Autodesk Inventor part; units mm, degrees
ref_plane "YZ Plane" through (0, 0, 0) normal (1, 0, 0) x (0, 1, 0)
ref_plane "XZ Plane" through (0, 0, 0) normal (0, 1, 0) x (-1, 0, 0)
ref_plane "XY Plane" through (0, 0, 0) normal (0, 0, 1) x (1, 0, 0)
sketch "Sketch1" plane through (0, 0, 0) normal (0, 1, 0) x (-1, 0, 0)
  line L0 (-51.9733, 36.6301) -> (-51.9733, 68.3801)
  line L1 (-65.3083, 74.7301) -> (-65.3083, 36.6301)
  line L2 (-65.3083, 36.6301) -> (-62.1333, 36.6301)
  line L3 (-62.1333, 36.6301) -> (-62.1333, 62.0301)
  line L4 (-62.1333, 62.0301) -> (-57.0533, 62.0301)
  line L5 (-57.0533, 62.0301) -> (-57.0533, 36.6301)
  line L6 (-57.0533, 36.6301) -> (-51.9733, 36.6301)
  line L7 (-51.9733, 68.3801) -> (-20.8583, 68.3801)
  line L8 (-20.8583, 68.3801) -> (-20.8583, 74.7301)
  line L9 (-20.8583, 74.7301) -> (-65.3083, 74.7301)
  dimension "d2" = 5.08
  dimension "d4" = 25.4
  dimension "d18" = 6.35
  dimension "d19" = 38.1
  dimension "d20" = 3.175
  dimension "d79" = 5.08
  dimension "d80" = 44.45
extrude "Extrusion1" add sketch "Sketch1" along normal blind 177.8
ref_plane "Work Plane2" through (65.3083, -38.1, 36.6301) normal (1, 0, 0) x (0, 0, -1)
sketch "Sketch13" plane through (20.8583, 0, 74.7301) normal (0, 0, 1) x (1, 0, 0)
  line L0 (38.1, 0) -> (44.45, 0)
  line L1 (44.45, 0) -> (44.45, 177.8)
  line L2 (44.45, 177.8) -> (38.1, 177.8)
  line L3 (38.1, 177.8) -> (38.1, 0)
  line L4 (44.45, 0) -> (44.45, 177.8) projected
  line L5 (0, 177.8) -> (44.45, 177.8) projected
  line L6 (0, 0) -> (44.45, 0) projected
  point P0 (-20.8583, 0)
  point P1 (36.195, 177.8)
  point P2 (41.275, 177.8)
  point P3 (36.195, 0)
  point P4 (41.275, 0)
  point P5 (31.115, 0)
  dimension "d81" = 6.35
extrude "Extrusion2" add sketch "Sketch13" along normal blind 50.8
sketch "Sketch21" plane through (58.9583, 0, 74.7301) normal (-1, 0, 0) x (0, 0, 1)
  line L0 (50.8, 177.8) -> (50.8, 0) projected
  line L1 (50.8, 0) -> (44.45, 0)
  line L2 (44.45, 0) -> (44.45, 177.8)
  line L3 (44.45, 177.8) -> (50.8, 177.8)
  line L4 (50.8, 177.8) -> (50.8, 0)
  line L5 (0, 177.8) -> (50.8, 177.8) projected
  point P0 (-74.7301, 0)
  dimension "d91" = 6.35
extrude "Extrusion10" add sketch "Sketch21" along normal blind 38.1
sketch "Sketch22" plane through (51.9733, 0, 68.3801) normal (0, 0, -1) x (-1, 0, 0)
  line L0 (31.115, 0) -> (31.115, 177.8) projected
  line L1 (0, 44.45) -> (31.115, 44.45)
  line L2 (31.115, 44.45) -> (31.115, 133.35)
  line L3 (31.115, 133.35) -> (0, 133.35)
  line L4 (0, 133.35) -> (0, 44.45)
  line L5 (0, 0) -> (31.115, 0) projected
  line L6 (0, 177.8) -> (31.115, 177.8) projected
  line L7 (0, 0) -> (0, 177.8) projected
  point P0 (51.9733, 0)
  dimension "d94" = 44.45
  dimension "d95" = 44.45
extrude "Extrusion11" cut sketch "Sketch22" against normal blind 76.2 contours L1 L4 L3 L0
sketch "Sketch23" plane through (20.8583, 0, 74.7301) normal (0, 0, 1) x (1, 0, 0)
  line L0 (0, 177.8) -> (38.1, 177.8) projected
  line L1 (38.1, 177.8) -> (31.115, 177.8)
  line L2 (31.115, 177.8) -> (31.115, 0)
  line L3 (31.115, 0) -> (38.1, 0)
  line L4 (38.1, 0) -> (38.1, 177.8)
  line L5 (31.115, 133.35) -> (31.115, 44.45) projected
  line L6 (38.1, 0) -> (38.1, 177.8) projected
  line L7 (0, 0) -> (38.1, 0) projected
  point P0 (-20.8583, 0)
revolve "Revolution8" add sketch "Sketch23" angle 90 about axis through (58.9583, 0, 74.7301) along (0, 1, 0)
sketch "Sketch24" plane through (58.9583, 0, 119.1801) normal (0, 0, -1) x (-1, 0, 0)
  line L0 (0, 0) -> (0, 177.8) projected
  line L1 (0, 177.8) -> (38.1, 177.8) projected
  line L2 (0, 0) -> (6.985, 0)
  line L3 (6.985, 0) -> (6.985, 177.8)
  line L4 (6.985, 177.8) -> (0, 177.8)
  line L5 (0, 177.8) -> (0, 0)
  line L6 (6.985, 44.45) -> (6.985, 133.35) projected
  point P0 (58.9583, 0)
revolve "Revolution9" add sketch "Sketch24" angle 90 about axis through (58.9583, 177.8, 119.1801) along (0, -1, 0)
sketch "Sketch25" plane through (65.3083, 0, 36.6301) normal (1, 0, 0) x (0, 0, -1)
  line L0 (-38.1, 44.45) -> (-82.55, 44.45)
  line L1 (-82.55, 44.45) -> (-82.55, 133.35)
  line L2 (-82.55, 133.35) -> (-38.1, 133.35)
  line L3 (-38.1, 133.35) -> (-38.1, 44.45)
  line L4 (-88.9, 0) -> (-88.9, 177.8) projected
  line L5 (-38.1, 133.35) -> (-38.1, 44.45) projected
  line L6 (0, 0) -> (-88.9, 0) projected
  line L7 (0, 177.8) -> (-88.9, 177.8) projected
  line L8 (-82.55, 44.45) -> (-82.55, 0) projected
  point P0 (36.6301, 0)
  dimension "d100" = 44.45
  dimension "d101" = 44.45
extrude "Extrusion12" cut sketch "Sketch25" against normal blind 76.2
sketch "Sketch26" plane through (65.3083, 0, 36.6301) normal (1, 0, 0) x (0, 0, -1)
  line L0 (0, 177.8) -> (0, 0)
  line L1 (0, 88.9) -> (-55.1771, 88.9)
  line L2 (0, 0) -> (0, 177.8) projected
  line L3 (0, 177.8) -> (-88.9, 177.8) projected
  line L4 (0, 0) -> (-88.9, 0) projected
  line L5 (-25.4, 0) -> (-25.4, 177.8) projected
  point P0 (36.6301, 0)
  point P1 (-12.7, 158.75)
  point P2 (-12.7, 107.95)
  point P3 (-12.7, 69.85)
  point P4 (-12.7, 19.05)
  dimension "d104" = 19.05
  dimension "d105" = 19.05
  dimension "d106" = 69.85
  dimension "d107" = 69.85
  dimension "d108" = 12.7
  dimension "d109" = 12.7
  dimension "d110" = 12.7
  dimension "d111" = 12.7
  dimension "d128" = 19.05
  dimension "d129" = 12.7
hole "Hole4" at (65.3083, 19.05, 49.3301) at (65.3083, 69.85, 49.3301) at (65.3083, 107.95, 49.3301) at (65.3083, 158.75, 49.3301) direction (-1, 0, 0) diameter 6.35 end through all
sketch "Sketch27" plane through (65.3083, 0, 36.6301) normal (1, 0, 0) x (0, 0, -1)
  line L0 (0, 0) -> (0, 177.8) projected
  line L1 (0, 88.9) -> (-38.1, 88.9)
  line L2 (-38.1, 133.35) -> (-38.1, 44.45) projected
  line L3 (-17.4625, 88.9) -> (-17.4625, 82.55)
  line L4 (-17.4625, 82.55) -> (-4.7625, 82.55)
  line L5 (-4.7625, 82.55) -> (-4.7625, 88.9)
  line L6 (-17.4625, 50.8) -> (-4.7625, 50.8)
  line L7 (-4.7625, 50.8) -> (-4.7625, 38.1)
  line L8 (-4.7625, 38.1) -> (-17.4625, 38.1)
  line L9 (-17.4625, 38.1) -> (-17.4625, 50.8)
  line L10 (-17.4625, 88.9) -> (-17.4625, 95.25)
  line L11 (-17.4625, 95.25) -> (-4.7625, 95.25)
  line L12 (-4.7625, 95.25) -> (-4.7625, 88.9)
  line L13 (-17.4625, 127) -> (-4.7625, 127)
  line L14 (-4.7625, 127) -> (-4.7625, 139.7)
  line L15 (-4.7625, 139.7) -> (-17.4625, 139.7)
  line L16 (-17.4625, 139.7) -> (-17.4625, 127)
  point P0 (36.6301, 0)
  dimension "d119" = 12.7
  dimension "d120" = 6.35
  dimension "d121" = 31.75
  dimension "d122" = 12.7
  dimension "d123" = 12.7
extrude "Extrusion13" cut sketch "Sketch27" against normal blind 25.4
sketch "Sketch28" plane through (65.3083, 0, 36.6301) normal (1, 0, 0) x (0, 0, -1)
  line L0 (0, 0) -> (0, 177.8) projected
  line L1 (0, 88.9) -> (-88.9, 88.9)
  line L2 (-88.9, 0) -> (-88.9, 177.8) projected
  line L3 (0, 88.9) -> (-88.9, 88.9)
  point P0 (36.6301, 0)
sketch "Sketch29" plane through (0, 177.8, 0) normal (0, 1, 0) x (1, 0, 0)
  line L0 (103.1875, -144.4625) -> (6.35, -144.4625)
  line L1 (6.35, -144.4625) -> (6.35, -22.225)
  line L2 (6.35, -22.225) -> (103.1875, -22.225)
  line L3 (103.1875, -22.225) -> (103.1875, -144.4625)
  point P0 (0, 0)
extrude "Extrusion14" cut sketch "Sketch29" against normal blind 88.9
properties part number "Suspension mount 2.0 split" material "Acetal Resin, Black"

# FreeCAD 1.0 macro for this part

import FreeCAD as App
import Part
import Sketcher
Q = App.Units.Quantity


def add_polygon(sketch, points):
    """Adds a closed chain of lines whose ends are joined by coincident constraints."""
    first, n = sketch.GeometryCount, len(points)
    for a, b in zip(points, points[1:] + points[:1]):
        sketch.addGeometry(Part.LineSegment(App.Vector(*a, 0), App.Vector(*b, 0)), False)
    for i in range(n):
        sketch.addConstraint(Sketcher.Constraint("Coincident", first + i, 2, first + (i + 1) % n, 1))

doc = App.newDocument("Part")
body = doc.addObject("PartDesign::Body", "Body")

# Sketch on XZ plane
sketch1 = body.newObject("Sketcher::SketchObject", "Sketch")
sketch1.AttachmentSupport = (doc.getObject("XZ_Plane"), [""])
sketch1.MapMode = "FlatFace"
add_polygon(sketch1, [(57.0533, 36.6301), (51.9733, 36.6301), (51.9733, 68.3801), (20.8583, 68.3801), (20.8583, 74.7301), (65.3083, 74.7301), (65.3083, 36.6301), (62.1333, 36.6301), (62.1333, 62.0301), (57.0533, 62.0301)])  # lines 0-9
sketch1.addConstraint([
    Sketcher.Constraint("Horizontal", 0),
    Sketcher.Constraint("Vertical", 1),
    Sketcher.Constraint("Horizontal", 2),
    Sketcher.Constraint("Vertical", 3),
    Sketcher.Constraint("Horizontal", 4),
    Sketcher.Constraint("Vertical", 5),
    Sketcher.Constraint("Horizontal", 6),
    Sketcher.Constraint("Vertical", 7),
    Sketcher.Constraint("Horizontal", 8),
    Sketcher.Constraint("Vertical", 9),
    Sketcher.Constraint("Horizontal", 0, 2, 5, 2),
    Sketcher.Constraint("Equal", 0, 8),
    Sketcher.Constraint("DistanceY", 7, 1, 7, 2, Q("1 in")),
    Sketcher.Constraint("DistanceX", 0, 2, 0, 1, Q("0.2 in")),
    Sketcher.Constraint("DistanceY", 5, 2, 5, 1, Q("1.5 in")),
    Sketcher.Constraint("DistanceX", 4, 1, 4, 2, Q("1.75 in")),
    Sketcher.Constraint("DistanceY", 3, 1, 3, 2, Q("0.25 in")),
    Sketcher.Constraint("DistanceX", 6, 2, 6, 1, Q("0.125 in")),
    Sketcher.Constraint("DistanceX", -1, 1, 0, 2, Q("2.0462 in")),
    Sketcher.Constraint("DistanceY", -1, 1, 0, 2, Q("36.63 mm")),
])
pad1 = body.newObject("PartDesign::Pad", "Pad")
pad1.Profile = sketch1
pad1.Length = Q("7 in")
pad1.Reversed = True

# Sketch on XY plane
sketch2 = body.newObject("Sketcher::SketchObject", "Sketch001")
sketch2.AttachmentSupport = (doc.getObject("XY_Plane"), [""])
sketch2.MapMode = "FlatFace"
sketch2.AttachmentOffset = App.Placement(App.Vector(0, 0, 74.7301), App.Rotation())
add_polygon(sketch2, [(58.9583, 177.8), (58.9583, 0), (65.3083, 0), (65.3083, 177.8)])  # lines 0-3
sketch2.addConstraint([
    Sketcher.Constraint("Vertical", 0),
    Sketcher.Constraint("Horizontal", 1),
    Sketcher.Constraint("Vertical", 2),
    Sketcher.Constraint("Horizontal", 3),
    Sketcher.Constraint("PointOnObject", 0, 2, -1),
    Sketcher.Constraint("DistanceX", 1, 1, 1, 2, Q("0.25 in")),
    Sketcher.Constraint("DistanceY", 0, 2, 0, 1, Q("7 in")),
    Sketcher.Constraint("DistanceX", -1, 1, 0, 2, Q("2.3212 in")),
])
pad2 = body.newObject("PartDesign::Pad", "Pad001")
pad2.Profile = sketch2
pad2.Length = Q("2 in")

# Sketch on YZ plane
sketch3 = body.newObject("Sketcher::SketchObject", "Sketch002")
sketch3.AttachmentSupport = (doc.getObject("YZ_Plane"), [""])
sketch3.MapMode = "FlatFace"
sketch3.AttachmentOffset = App.Placement(App.Vector(0, 0, 2.3211929 * 25.4), App.Rotation())
add_polygon(sketch3, [(0, 125.5301), (177.8, 125.5301), (177.8, 119.1801), (0, 119.1801)])  # lines 0-3
sketch3.addConstraint([
    Sketcher.Constraint("Horizontal", 0),
    Sketcher.Constraint("Vertical", 1),
    Sketcher.Constraint("Horizontal", 2),
    Sketcher.Constraint("Vertical", 3),
    Sketcher.Constraint("PointOnObject", 2, 2, -2),
    Sketcher.Constraint("DistanceY", 1, 2, 1, 1, Q("0.25 in")),
    Sketcher.Constraint("DistanceX", 0, 1, 0, 2, Q("7 in")),
    Sketcher.Constraint("DistanceY", -1, 1, 0, 2, Q("125.53 mm")),
])
pad3 = body.newObject("PartDesign::Pad", "Pad002")
pad3.Profile = sketch3
pad3.Length = Q("1.5 in")
pad3.Reversed = True

# Sketch on XY plane
sketch4 = body.newObject("Sketcher::SketchObject", "Sketch003")
sketch4.AttachmentSupport = (doc.getObject("XY_Plane"), [""])
sketch4.MapMode = "FlatFace"
sketch4.AttachmentOffset = App.Placement(App.Vector(0, 0, 68.3801), App.Rotation())
add_polygon(sketch4, [(51.9733, 44.45), (20.8583, 44.45), (20.8583, 133.35), (51.9733, 133.35)])  # lines 0-3
sketch4.addConstraint([
    Sketcher.Constraint("Horizontal", 0),
    Sketcher.Constraint("Vertical", 1),
    Sketcher.Constraint("Horizontal", 2),
    Sketcher.Constraint("Vertical", 3),
    Sketcher.Constraint("DistanceY", -1, 1, 0, 2, Q("1.75 in")),
    Sketcher.Constraint("DistanceY", 1, 1, 1, 2, Q("3.5 in")),
    Sketcher.Constraint("DistanceX", 0, 2, 0, 1, Q("1.225 in")),
    Sketcher.Constraint("DistanceX", -1, 1, 0, 2, Q("0.8212 in")),
])
pocket1 = body.newObject("PartDesign::Pocket", "Pocket")
pocket1.Profile = sketch4
pocket1.Length = Q("3 in")
pocket1.Reversed = True

# Sketch on XY plane
sketch5 = body.newObject("Sketcher::SketchObject", "Sketch004")
sketch5.AttachmentSupport = (doc.getObject("XY_Plane"), [""])
sketch5.MapMode = "FlatFace"
sketch5.AttachmentOffset = App.Placement(App.Vector(0, 0, 74.7301), App.Rotation())
add_polygon(sketch5, [(58.9583, 177.8), (51.9733, 177.8), (51.9733, 0), (58.9583, 0)])  # lines 0-3
sketch5.addGeometry(Part.LineSegment(App.Vector(58.9583, 0, 0), App.Vector(58.9583, 177.8, 0)), True)  # axis
sketch5.addConstraint([
    Sketcher.Constraint("Horizontal", 0),
    Sketcher.Constraint("Vertical", 1),
    Sketcher.Constraint("Horizontal", 2),
    Sketcher.Constraint("Vertical", 3),
    Sketcher.Constraint("Vertical", 4),
    Sketcher.Constraint("Coincident", 4, 1, 2, 2),
    Sketcher.Constraint("PointOnObject", 1, 2, -1),
    Sketcher.Constraint("Horizontal", 0, 2, 4, 2),
    Sketcher.Constraint("DistanceY", 1, 2, 1, 1, Q("7 in")),
    Sketcher.Constraint("DistanceX", 0, 2, 0, 1, Q("0.275 in")),
    Sketcher.Constraint("DistanceX", -1, 1, 0, 2, Q("2.0462 in")),
])
revolution = body.newObject("PartDesign::Revolution", "Revolution")
revolution.Profile = sketch5
revolution.ReferenceAxis = (sketch5, ["Axis0"])
revolution.Angle = 90

# Sketch on XY plane
sketch6 = body.newObject("Sketcher::SketchObject", "Sketch005")
sketch6.AttachmentSupport = (doc.getObject("XY_Plane"), [""])
sketch6.MapMode = "FlatFace"
sketch6.AttachmentOffset = App.Placement(App.Vector(0, 0, 119.1801), App.Rotation())
add_polygon(sketch6, [(58.9583, 177.8), (58.9583, 0), (51.9733, 0), (51.9733, 177.8)])  # lines 0-3
sketch6.addGeometry(Part.LineSegment(App.Vector(58.9583, 177.8, 0), App.Vector(58.9583, 0, 0)), True)  # axis
sketch6.addConstraint([
    Sketcher.Constraint("Vertical", 0),
    Sketcher.Constraint("Horizontal", 1),
    Sketcher.Constraint("Vertical", 2),
    Sketcher.Constraint("Horizontal", 3),
    Sketcher.Constraint("Vertical", 4),
    Sketcher.Constraint("Coincident", 4, 1, 3, 2),
    Sketcher.Constraint("PointOnObject", 0, 2, -1),
    Sketcher.Constraint("PointOnObject", 4, 2, -1),
    Sketcher.Constraint("DistanceY", 0, 2, 0, 1, Q("7 in")),
    Sketcher.Constraint("DistanceX", 1, 2, 1, 1, Q("0.275 in")),
    Sketcher.Constraint("DistanceX", -1, 1, 0, 2, Q("2.3212 in")),
])
revolution2 = body.newObject("PartDesign::Revolution", "Revolution001")
revolution2.Profile = sketch6
revolution2.ReferenceAxis = (sketch6, ["Axis0"])
revolution2.Angle = 90

# Sketch on YZ plane
sketch7 = body.newObject("Sketcher::SketchObject", "Sketch006")
sketch7.AttachmentSupport = (doc.getObject("YZ_Plane"), [""])
sketch7.MapMode = "FlatFace"
sketch7.AttachmentOffset = App.Placement(App.Vector(0, 0, 2.5711929 * 25.4), App.Rotation())
add_polygon(sketch7, [(44.45, 119.1801), (44.45, 74.7301), (133.35, 74.7301), (133.35, 119.1801)])  # lines 0-3
sketch7.addConstraint([
    Sketcher.Constraint("Vertical", 0),
    Sketcher.Constraint("Horizontal", 1),
    Sketcher.Constraint("Vertical", 2),
    Sketcher.Constraint("Horizontal", 3),
    Sketcher.Constraint("DistanceY", 0, 2, 0, 1, Q("1.75 in")),
    Sketcher.Constraint("DistanceX", -1, 1, 0, 2, Q("1.75 in")),
    Sketcher.Constraint("DistanceX", 1, 1, 1, 2, Q("3.5 in")),
    Sketcher.Constraint("DistanceY", -1, 1, 0, 2, Q("74.73 mm")),
])
pocket2 = body.newObject("PartDesign::Pocket", "Pocket001")
pocket2.Profile = sketch7
pocket2.Length = Q("3 in")

# Sketch on YZ plane
sketch8 = body.newObject("Sketcher::SketchObject", "Sketch007")
sketch8.AttachmentSupport = (doc.getObject("YZ_Plane"), [""])
sketch8.MapMode = "FlatFace"
sketch8.AttachmentOffset = App.Placement(App.Vector(0, 0, 2.5711929 * 25.4), App.Rotation())
sketch8.addGeometry([
    Part.Circle(App.Vector(19.05, 49.3301, 0), App.Vector(0, 0, 1), 3.175),
    Part.Circle(App.Vector(69.85, 49.3301, 0), App.Vector(0, 0, 1), 3.175),
    Part.Circle(App.Vector(107.95, 49.3301, 0), App.Vector(0, 0, 1), 3.175),
    Part.Circle(App.Vector(158.75, 49.3301, 0), App.Vector(0, 0, 1), 3.175),
], False)
sketch8.addConstraint([
    Sketcher.Constraint("Equal", 0, 1),
    Sketcher.Constraint("Equal", 1, 2),
    Sketcher.Constraint("Equal", 2, 3),
    Sketcher.Constraint("Horizontal", 0, 3, 1, 3),
    Sketcher.Constraint("Horizontal", 1, 3, 2, 3),
    Sketcher.Constraint("Horizontal", 2, 3, 3, 3),
    Sketcher.Constraint("Diameter", 0, Q("0.25 in")),
    Sketcher.Constraint("DistanceX", 0, 3, 1, 3, Q("2 in")),
    Sketcher.Constraint("DistanceX", 2, 3, 3, 3, Q("2 in")),
    Sketcher.Constraint("DistanceX", 1, 3, 2, 3, Q("1.5 in")),
    Sketcher.Constraint("DistanceX", -1, 1, 0, 3, Q("0.75 in")),
    Sketcher.Constraint("DistanceY", -1, 1, 0, 3, Q("49.33 mm")),
])
doc.recompute()
hole = body.newObject("PartDesign::Hole", "Hole")
hole.Profile = sketch8
hole.ThreadType = "None"
hole.Diameter = Q("0.25 in")
hole.DepthType = "ThroughAll"

# Sketch on YZ plane
sketch9 = body.newObject("Sketcher::SketchObject", "Sketch008")
sketch9.AttachmentSupport = (doc.getObject("YZ_Plane"), [""])
sketch9.MapMode = "FlatFace"
sketch9.AttachmentOffset = App.Placement(App.Vector(0, 0, 2.5711929 * 25.4), App.Rotation())
add_polygon(sketch9, [(82.55, 41.3926), (95.25, 41.3926), (95.25, 54.0926), (82.55, 54.0926)])  # lines 0-3
add_polygon(sketch9, [(50.8, 41.3926), (50.8, 54.0926), (38.1, 54.0926), (38.1, 41.3926)])  # lines 4-7
add_polygon(sketch9, [(139.7, 54.0926), (127, 54.0926), (127, 41.3926), (139.7, 41.3926)])  # lines 8-11
sketch9.addConstraint([
    Sketcher.Constraint("Horizontal", 0),
    Sketcher.Constraint("Vertical", 1),
    Sketcher.Constraint("Horizontal", 2),
    Sketcher.Constraint("Vertical", 3),
    Sketcher.Constraint("Vertical", 4),
    Sketcher.Constraint("Horizontal", 5),
    Sketcher.Constraint("Vertical", 6),
    Sketcher.Constraint("Horizontal", 7),
    Sketcher.Constraint("Horizontal", 8),
    Sketcher.Constraint("Vertical", 9),
    Sketcher.Constraint("Horizontal", 10),
    Sketcher.Constraint("Vertical", 11),
    Sketcher.Constraint("Horizontal", 2, 2, 4, 2),
    Sketcher.Constraint("Horizontal", 3, 2, 6, 2),
    Sketcher.Constraint("Horizontal", 5, 2, 8, 2),
    Sketcher.Constraint("Horizontal", 7, 2, 9, 2),
    Sketcher.Constraint("Equal", 2, 5),
    Sketcher.Constraint("Equal", 7, 8),
    Sketcher.Constraint("Equal", 10, 1),
    Sketcher.Constraint("DistanceX", 0, 1, 0, 2, Q("0.5 in")),
    Sketcher.Constraint("DistanceX", 4, 2, 2, 2, Q("1.25 in")),
    Sketcher.Constraint("DistanceX", 1, 2, 8, 2, Q("1.25 in")),
    Sketcher.Constraint("DistanceX", -1, 1, 4, 2, Q("2 in")),
    Sketcher.Constraint("DistanceY", -1, 1, 0, 2, Q("41.3926 mm")),
])
pocket3 = body.newObject("PartDesign::Pocket", "Pocket002")
pocket3.Profile = sketch9
pocket3.Length = Q("1 in")

# Sketch on XZ plane
sketch10 = body.newObject("Sketcher::SketchObject", "Sketch009")
sketch10.AttachmentSupport = (doc.getObject("XZ_Plane"), [""])
sketch10.MapMode = "FlatFace"
sketch10.AttachmentOffset = App.Placement(App.Vector(0, 0, -7 * 25.4), App.Rotation())
add_polygon(sketch10, [(6.35, 144.4625), (103.1875, 144.4625), (103.1875, 22.225), (6.35, 22.225)])  # lines 0-3
sketch10.addConstraint([
    Sketcher.Constraint("Horizontal", 0),
    Sketcher.Constraint("Vertical", 1),
    Sketcher.Constraint("Horizontal", 2),
    Sketcher.Constraint("Vertical", 3),
    Sketcher.Constraint("DistanceX", 0, 1, 0, 2, Q("3.8125 in")),
    Sketcher.Constraint("DistanceY", 1, 2, 1, 1, Q("4.8125 in")),
    Sketcher.Constraint("DistanceX", -1, 1, 2, 2, Q("0.25 in")),
    Sketcher.Constraint("DistanceY", -1, 1, 0, 2, Q("5.6875 in")),
])
pocket4 = body.newObject("PartDesign::Pocket", "Pocket003")
pocket4.Profile = sketch10
pocket4.Length = Q("3.5 in")
pocket4.Reversed = True

doc.recompute()
